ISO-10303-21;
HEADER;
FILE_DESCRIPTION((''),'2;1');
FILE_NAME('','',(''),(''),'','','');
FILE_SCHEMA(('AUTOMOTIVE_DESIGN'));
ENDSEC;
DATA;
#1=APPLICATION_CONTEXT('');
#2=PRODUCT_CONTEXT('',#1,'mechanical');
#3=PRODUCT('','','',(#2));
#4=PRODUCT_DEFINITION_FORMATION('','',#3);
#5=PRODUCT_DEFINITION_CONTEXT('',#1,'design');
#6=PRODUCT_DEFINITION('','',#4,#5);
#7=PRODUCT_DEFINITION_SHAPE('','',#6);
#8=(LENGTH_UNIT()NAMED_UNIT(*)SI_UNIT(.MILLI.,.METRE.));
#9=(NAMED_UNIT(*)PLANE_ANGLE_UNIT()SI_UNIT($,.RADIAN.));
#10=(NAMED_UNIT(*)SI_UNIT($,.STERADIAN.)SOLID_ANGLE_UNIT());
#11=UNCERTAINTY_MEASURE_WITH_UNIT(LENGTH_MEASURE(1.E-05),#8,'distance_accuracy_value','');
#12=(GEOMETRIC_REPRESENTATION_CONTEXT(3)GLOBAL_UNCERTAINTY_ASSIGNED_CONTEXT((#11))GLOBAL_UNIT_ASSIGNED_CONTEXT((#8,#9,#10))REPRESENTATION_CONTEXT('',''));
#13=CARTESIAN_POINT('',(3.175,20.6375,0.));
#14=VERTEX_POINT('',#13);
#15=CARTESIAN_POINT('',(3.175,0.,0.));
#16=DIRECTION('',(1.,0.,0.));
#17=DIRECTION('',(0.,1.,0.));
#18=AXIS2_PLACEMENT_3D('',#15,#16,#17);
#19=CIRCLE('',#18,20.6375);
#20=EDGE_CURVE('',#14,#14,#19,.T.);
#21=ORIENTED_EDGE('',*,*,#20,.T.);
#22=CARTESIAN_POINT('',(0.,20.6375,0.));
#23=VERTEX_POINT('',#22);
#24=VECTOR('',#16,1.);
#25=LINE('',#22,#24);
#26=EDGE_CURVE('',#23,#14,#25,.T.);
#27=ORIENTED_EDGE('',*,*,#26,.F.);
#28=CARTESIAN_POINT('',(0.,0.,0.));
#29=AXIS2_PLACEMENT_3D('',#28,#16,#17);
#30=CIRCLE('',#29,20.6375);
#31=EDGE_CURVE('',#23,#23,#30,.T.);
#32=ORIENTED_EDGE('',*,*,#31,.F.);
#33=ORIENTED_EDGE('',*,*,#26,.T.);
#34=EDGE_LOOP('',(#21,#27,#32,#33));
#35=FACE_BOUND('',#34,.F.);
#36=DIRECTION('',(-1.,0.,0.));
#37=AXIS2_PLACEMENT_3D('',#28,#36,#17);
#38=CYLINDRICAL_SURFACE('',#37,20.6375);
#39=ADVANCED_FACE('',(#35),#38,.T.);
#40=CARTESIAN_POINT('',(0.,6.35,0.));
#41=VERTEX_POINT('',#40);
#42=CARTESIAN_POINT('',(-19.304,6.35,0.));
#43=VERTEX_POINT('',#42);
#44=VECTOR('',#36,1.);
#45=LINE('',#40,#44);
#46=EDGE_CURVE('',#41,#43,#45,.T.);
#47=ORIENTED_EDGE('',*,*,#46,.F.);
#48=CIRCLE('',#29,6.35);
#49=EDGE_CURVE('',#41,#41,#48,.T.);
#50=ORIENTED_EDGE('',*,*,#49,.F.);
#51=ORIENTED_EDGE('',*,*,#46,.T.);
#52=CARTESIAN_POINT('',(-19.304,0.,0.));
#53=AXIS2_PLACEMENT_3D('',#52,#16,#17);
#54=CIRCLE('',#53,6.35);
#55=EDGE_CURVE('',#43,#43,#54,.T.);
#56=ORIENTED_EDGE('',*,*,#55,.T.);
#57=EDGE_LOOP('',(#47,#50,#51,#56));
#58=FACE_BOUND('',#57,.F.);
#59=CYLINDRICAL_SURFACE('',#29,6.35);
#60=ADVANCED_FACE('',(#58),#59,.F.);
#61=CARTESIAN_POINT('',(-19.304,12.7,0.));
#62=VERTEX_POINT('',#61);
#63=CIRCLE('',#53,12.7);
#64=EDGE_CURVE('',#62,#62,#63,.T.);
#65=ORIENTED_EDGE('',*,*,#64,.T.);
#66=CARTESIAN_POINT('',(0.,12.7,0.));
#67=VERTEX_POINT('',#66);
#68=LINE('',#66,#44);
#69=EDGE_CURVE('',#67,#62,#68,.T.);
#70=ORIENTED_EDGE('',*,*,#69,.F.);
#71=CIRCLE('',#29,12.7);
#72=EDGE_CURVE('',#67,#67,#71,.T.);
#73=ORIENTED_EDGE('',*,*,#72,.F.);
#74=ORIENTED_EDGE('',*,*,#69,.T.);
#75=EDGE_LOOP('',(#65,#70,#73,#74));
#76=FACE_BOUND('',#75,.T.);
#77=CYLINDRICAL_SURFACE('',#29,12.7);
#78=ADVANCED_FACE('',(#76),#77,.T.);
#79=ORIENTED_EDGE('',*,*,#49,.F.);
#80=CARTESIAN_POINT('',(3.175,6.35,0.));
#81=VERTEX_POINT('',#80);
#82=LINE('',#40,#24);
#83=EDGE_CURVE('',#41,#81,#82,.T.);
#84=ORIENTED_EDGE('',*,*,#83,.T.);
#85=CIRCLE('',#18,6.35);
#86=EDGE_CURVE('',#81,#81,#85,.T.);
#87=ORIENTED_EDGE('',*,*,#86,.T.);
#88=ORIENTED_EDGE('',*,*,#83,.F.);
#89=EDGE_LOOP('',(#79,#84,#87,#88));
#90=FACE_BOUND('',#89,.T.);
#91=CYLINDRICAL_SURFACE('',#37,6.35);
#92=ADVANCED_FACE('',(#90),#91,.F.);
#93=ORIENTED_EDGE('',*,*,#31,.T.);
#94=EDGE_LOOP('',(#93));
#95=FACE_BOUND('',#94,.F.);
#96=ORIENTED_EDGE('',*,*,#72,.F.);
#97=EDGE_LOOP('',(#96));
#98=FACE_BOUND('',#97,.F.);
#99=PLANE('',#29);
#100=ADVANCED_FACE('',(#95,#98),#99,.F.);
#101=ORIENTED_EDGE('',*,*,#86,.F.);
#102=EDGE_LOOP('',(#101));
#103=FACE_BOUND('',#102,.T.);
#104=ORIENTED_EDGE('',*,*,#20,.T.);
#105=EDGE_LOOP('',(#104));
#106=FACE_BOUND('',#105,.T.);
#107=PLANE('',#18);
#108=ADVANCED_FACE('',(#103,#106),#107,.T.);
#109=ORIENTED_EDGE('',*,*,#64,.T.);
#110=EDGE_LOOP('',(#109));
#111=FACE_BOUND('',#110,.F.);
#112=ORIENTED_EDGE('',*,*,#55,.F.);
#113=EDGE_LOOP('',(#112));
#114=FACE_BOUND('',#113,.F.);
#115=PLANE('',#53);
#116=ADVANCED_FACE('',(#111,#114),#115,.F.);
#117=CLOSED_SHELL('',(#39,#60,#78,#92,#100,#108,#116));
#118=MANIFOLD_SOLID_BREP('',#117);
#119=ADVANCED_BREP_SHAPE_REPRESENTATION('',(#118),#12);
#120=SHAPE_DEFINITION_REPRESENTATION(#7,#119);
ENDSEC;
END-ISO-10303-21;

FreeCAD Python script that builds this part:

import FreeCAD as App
import Part
import Sketcher
Q = App.Units.Quantity

doc = App.newDocument("Part")
body = doc.addObject("PartDesign::Body", "Body")

# Sketch on YZ plane
sketch1 = body.newObject("Sketcher::SketchObject", "Sketch")
sketch1.AttachmentSupport = (doc.getObject("YZ_Plane"), [""])
sketch1.MapMode = "FlatFace"
sketch1.addGeometry(Part.Circle(App.Vector(0, 0, 0), App.Vector(0, 0, 1), 21), False)
sketch1.addGeometry(Part.Circle(App.Vector(0, 0, 0), App.Vector(0, 0, 1), 6), False)
sketch1.addConstraint(Sketcher.Constraint("Coincident", 0, 3, -1, 1))
sketch1.addConstraint(Sketcher.Constraint("Coincident", 1, 3, -1, 1))
sketch1.addConstraint(Sketcher.Constraint("Diameter", 1, Q("0.5 in")))
sketch1.addConstraint(Sketcher.Constraint("Diameter", 0, Q("1.625 in")))
pad1 = body.newObject("PartDesign::Pad", "Pad")
pad1.Profile = sketch1
pad1.Length = Q("0.125 in")

# Sketch on YZ plane
sketch2 = body.newObject("Sketcher::SketchObject", "Sketch001")
sketch2.AttachmentSupport = (doc.getObject("YZ_Plane"), [""])
sketch2.MapMode = "FlatFace"
sketch2.addGeometry(Part.Circle(App.Vector(0, 0, 0), App.Vector(0, 0, 1), 13), False)
sketch2.addGeometry(Part.Circle(App.Vector(0, 0, 0), App.Vector(0, 0, 1), 6), False)
sketch2.addConstraint(Sketcher.Constraint("Coincident", 0, 3, -1, 1))
sketch2.addConstraint(Sketcher.Constraint("Coincident", 1, 3, -1, 1))
sketch2.addConstraint(Sketcher.Constraint("Diameter", 0, Q("1 in")))
sketch2.addConstraint(Sketcher.Constraint("Diameter", 1, Q("0.5 in")))
pad2 = body.newObject("PartDesign::Pad", "Pad001")
pad2.Profile = sketch2
pad2.Length = Q("0.76 in")
pad2.Reversed = True

doc.recompute()
